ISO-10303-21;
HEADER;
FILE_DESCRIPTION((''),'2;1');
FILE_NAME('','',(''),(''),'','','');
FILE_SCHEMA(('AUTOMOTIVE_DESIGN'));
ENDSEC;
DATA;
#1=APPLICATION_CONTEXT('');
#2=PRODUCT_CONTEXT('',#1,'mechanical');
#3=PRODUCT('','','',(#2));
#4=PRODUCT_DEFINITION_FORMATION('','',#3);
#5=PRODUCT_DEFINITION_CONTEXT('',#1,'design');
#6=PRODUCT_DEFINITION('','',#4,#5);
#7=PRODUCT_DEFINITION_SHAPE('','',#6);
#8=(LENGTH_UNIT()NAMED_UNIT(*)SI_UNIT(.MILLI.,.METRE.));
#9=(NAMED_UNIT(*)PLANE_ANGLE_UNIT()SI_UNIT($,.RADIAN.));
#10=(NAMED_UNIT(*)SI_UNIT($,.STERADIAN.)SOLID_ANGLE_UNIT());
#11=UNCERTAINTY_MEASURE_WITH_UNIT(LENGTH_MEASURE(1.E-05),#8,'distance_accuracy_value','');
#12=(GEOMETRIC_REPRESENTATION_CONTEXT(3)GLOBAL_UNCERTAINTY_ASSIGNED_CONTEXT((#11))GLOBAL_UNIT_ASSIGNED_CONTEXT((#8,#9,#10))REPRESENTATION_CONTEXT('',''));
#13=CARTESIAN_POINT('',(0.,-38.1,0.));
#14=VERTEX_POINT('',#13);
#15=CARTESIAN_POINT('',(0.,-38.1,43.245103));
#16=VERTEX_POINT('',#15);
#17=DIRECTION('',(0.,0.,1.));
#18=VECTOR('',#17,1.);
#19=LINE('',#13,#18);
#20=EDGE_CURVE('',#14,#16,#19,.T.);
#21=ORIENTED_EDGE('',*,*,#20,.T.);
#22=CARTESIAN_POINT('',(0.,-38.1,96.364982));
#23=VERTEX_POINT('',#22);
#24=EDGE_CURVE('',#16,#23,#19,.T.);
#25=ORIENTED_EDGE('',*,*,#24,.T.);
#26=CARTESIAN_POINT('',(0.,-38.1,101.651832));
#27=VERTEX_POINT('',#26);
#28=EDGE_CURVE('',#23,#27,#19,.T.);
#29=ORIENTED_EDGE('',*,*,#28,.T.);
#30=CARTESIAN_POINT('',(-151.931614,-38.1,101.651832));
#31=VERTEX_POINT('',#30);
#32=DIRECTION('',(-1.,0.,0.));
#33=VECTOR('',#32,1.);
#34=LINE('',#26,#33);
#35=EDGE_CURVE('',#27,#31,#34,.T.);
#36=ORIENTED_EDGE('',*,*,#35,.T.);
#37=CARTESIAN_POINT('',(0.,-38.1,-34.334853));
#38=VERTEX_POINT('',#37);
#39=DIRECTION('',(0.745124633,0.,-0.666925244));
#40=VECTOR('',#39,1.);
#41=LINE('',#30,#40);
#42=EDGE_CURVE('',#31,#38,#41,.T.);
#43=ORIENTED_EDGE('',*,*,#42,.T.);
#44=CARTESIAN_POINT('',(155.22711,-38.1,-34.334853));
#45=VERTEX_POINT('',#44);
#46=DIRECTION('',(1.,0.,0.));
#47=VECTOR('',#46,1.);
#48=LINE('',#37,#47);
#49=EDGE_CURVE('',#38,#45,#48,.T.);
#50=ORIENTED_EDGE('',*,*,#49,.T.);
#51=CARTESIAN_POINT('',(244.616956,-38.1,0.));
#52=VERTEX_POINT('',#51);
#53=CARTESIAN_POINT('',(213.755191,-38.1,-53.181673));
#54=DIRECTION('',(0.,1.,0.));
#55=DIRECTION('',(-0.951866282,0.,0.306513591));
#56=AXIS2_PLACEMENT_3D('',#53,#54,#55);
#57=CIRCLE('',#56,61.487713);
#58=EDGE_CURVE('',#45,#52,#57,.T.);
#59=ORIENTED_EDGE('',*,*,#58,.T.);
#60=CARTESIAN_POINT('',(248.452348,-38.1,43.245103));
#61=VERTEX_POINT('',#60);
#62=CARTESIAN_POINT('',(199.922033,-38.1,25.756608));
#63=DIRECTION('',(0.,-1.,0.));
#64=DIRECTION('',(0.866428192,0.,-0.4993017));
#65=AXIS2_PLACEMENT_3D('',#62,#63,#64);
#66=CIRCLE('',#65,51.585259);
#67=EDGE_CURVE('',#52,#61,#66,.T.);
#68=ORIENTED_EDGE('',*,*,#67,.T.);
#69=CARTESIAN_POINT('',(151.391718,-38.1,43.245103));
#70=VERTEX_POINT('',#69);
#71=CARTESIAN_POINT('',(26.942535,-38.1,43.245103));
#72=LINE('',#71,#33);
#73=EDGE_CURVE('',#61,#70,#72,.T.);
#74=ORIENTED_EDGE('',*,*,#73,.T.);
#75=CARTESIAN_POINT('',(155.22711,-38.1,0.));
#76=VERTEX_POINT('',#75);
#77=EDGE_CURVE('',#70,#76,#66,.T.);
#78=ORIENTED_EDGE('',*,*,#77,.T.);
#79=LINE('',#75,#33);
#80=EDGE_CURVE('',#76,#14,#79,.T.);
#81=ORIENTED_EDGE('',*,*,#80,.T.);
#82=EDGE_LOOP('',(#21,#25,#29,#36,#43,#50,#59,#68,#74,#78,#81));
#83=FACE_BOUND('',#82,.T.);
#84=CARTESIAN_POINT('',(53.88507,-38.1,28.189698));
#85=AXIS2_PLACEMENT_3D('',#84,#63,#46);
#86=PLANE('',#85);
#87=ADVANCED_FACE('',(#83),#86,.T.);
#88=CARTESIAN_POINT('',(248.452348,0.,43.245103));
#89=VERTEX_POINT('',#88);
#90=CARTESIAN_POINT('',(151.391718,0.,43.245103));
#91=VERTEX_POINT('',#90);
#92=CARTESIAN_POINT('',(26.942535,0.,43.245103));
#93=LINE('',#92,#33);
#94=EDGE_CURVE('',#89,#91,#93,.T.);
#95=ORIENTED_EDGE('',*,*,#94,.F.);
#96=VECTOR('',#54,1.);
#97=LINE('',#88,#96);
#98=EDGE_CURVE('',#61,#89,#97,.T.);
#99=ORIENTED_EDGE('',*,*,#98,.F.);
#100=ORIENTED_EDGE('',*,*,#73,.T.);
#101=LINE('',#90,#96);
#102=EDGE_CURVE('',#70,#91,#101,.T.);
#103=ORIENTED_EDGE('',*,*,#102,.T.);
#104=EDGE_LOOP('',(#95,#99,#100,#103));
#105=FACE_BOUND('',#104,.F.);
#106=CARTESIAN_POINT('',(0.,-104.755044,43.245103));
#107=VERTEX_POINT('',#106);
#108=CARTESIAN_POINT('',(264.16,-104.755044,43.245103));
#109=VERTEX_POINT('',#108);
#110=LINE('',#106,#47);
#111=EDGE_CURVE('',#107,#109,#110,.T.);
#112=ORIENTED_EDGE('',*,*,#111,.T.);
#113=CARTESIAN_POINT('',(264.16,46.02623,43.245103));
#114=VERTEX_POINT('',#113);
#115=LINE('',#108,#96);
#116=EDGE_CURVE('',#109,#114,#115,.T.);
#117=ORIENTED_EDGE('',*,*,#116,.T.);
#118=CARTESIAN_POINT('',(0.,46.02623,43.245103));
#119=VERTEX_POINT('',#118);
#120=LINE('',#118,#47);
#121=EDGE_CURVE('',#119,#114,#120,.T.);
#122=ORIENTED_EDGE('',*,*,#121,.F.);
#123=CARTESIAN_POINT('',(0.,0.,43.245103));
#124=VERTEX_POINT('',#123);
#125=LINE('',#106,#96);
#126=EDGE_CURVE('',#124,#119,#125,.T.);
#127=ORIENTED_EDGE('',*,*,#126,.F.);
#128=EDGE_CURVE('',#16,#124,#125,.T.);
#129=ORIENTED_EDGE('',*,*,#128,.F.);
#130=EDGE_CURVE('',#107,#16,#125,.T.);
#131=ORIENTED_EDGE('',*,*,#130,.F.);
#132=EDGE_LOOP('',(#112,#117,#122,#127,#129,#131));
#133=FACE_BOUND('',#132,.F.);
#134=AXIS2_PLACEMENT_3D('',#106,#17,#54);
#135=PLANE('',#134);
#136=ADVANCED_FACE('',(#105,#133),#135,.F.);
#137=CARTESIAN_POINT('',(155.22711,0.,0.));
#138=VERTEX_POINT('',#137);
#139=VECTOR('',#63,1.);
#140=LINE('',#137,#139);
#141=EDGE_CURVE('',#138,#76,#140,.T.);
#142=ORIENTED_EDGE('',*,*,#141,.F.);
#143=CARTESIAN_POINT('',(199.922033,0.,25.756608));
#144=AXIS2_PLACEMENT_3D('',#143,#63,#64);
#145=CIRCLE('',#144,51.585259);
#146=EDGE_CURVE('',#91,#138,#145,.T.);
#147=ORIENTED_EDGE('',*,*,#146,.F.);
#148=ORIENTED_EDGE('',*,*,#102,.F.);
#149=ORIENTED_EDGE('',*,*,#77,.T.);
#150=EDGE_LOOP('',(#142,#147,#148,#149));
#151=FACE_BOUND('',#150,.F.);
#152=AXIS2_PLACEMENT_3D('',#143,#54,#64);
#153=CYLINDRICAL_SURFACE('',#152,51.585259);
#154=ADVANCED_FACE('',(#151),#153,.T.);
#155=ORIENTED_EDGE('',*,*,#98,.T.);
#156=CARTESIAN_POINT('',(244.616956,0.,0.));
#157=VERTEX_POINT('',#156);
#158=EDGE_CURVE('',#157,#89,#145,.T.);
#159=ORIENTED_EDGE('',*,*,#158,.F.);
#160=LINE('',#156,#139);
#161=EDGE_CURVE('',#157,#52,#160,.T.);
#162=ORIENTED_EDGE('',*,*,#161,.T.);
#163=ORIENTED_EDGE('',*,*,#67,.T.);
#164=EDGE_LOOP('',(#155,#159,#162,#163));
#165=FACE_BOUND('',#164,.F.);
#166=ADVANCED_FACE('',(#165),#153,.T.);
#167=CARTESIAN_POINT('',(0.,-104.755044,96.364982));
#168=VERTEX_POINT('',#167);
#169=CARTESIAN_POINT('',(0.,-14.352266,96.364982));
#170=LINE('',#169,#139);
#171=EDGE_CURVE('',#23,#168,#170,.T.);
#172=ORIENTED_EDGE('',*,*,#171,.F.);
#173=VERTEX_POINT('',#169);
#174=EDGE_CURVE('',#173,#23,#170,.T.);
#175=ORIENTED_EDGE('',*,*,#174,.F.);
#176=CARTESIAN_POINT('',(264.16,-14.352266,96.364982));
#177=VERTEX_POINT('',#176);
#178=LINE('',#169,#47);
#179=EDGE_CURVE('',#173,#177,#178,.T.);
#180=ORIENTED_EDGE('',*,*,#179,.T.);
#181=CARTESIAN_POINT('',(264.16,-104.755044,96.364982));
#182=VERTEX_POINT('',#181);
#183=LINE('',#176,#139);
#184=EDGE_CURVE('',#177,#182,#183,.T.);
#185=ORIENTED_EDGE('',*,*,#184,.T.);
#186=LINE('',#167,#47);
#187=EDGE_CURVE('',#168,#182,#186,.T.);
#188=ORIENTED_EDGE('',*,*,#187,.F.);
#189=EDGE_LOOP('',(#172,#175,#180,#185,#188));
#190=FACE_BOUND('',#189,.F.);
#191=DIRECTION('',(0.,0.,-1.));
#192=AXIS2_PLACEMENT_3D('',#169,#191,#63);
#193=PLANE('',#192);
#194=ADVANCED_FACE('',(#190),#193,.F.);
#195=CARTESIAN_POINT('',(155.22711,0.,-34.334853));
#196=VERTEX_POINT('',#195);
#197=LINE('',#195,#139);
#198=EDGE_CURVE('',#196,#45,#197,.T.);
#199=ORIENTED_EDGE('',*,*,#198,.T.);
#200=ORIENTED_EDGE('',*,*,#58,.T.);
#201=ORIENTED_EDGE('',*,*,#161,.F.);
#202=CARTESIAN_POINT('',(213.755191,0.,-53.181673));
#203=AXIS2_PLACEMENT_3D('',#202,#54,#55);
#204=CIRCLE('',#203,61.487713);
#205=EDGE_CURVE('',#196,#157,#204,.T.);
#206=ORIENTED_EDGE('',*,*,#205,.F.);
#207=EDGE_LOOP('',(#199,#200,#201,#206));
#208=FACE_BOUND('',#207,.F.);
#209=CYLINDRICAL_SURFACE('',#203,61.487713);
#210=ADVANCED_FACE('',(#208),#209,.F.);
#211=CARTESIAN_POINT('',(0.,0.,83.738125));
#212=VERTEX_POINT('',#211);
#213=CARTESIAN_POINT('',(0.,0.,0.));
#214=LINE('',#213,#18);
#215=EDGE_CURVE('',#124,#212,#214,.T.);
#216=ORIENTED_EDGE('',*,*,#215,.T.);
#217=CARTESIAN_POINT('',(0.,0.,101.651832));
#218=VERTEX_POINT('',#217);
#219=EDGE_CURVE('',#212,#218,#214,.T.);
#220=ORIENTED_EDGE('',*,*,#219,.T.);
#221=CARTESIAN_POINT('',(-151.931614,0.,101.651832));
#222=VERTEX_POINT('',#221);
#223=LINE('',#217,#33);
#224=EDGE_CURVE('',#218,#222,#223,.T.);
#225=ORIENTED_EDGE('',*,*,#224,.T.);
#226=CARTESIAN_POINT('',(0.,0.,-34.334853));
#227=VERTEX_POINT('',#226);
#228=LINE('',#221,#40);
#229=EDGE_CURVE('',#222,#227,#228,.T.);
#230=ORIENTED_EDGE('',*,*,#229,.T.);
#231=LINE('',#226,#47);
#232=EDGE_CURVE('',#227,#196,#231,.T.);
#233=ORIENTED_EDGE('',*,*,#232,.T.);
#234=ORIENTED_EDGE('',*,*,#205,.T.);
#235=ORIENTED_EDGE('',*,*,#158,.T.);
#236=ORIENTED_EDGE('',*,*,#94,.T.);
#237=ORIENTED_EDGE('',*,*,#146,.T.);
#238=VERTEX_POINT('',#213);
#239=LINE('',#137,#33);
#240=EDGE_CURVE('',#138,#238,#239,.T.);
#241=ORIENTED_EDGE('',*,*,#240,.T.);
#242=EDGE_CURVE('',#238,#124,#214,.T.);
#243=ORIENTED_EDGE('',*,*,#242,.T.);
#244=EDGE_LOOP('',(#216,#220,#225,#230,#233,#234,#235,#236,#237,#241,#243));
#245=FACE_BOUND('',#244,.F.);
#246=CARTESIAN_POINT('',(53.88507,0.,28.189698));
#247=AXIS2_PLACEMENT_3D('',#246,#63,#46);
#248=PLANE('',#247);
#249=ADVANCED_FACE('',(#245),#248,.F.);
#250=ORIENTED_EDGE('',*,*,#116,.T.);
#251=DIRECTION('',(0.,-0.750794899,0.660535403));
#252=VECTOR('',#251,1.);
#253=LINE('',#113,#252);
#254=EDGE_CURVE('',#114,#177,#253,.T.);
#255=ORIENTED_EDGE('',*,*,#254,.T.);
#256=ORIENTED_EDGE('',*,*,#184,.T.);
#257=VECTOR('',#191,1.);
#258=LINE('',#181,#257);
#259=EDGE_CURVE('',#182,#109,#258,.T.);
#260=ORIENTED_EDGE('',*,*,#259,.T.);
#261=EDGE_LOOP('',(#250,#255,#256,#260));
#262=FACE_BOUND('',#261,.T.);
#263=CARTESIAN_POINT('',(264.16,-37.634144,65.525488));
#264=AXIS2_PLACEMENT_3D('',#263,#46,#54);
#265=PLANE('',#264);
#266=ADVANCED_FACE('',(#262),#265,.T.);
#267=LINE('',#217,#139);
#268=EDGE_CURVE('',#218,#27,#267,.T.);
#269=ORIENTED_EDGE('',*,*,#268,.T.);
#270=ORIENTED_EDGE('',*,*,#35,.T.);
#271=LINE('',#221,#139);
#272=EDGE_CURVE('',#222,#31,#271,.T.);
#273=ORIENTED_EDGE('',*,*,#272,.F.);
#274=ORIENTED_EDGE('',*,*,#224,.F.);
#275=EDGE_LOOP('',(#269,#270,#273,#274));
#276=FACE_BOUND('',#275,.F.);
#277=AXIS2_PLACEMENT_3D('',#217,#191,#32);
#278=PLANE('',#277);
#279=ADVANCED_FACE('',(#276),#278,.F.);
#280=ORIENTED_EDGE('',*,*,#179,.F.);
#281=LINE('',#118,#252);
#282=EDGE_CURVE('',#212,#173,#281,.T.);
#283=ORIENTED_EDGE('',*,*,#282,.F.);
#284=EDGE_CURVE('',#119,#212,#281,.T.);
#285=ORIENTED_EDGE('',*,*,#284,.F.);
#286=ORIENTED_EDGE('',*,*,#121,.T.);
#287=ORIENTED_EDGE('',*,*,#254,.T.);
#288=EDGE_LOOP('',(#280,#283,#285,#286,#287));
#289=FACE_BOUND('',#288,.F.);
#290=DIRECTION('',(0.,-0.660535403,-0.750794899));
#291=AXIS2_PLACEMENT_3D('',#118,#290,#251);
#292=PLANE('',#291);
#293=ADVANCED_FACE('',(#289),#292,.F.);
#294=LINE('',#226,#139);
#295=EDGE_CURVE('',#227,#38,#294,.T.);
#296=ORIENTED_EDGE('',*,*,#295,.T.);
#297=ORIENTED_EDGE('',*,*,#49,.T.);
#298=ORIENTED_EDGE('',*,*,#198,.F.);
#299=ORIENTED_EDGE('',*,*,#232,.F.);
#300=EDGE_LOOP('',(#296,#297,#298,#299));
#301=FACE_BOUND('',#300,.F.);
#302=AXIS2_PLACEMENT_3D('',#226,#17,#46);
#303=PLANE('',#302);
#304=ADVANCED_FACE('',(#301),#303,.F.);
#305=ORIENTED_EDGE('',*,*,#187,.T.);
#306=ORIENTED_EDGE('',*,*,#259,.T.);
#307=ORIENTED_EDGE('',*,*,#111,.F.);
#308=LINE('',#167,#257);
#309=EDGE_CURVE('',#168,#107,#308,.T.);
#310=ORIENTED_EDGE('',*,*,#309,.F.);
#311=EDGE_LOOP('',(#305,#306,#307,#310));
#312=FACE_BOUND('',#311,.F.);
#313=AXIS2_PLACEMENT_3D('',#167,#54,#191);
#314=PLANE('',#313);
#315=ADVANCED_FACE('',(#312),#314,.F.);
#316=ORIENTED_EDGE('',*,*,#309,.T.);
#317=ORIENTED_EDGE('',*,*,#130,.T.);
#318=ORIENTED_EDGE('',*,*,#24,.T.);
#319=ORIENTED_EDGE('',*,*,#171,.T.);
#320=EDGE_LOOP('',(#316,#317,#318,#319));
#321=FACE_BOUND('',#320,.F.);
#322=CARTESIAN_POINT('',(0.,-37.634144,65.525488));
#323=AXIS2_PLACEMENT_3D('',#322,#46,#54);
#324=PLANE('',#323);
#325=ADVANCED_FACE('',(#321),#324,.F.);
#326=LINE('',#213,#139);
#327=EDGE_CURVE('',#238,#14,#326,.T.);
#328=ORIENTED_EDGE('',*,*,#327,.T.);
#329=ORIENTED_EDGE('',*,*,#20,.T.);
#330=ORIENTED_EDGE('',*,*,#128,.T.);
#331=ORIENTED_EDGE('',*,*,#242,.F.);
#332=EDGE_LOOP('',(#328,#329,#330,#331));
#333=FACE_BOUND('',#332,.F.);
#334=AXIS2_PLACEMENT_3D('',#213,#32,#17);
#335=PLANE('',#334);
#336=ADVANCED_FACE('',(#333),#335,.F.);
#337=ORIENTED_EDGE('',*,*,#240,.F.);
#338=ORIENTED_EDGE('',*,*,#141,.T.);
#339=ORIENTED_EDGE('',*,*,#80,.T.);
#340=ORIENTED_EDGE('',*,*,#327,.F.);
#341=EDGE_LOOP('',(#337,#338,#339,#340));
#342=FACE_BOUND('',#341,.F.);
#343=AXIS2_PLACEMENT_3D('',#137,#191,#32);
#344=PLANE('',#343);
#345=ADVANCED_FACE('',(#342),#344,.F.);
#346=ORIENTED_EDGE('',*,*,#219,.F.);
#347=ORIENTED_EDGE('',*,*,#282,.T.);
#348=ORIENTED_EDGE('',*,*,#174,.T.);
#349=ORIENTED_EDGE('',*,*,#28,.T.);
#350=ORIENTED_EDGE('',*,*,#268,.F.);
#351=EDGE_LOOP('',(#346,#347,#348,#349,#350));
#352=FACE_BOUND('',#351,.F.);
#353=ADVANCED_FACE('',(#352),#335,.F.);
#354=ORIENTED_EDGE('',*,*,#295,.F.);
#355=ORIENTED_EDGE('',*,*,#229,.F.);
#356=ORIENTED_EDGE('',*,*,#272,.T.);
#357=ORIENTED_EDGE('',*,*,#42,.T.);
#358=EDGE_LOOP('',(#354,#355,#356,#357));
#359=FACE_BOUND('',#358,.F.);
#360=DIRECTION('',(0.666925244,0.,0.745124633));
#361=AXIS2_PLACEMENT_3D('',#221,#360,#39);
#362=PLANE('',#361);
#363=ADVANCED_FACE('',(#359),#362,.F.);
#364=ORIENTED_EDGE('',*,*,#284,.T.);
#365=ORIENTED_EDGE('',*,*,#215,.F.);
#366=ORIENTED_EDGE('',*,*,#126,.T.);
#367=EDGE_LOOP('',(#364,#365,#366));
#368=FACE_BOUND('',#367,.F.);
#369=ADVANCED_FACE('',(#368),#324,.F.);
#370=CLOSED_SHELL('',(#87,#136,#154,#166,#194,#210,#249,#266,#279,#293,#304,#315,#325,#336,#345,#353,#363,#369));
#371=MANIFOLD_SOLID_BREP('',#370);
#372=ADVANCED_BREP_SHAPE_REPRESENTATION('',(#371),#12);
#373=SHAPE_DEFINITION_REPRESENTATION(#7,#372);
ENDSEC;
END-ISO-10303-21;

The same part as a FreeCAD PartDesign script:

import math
import FreeCAD as App
import Part
import Sketcher

V = App.Vector
Q = App.Units.Quantity

doc = App.newDocument("Part")
body = doc.addObject("PartDesign::Body", "Body")

# Sketch on XZ plane
sketch1 = body.newObject("Sketcher::SketchObject", "Sketch")
sketch1.AttachmentSupport = (doc.getObject("XZ_Plane"), [""])
sketch1.MapMode = "FlatFace"
sketch1.addGeometry([
    Part.LineSegment(V(0, 102, 0), V(-152, 102, 0)),  # 0
    Part.LineSegment(V(-152, 102, 0), V(0, -34, 0)),  # 1
    Part.LineSegment(V(0, -34, 0), V(155, -34, 0)),  # 2
    Part.ArcOfCircle(Part.Circle(V(214, -53, 0), V(0, 0, 1), 61), math.radians(60), math.radians(162)),  # 3
    Part.ArcOfCircle(Part.Circle(V(200, 26, 0), V(0, 0, 1), 52), math.radians(-30), math.radians(210)),  # 4
    Part.LineSegment(V(155, 0, 0), V(0, 0, 0)),  # 5
    Part.LineSegment(V(0, 0, 0), V(0, 102, 0)),  # 6
], False)
sketch1.addConstraint([
    Sketcher.Constraint("Coincident", 0, 2, 1, 1),
    Sketcher.Constraint("Coincident", 1, 2, 2, 1),
    Sketcher.Constraint("Coincident", 2, 2, 3, 2),
    Sketcher.Constraint("Coincident", 3, 1, 4, 1),
    Sketcher.Constraint("Coincident", 4, 2, 5, 1),
    Sketcher.Constraint("Coincident", 5, 2, 6, 1),
    Sketcher.Constraint("Coincident", 6, 2, 0, 1),
    Sketcher.Constraint("Horizontal", 0),
    Sketcher.Constraint("Horizontal", 2),
    Sketcher.Constraint("Horizontal", 5),
    Sketcher.Constraint("Vertical", 6),
    Sketcher.Constraint("Coincident", 5, 2, -1, 1),
    Sketcher.Constraint("PointOnObject", 1, 2, -2),
    Sketcher.Constraint("PointOnObject", 3, 1, -1),
    Sketcher.Constraint("Vertical", 2, 2, 4, 2),
    Sketcher.Constraint("Radius", 4, Q("51.585259 mm")),
    Sketcher.Constraint("Radius", 3, Q("61.487713 mm")),
    Sketcher.Constraint("DistanceX", 2, 1, 2, 2, Q("155.22711 mm")),
    Sketcher.Constraint("DistanceY", 6, 1, 6, 2, Q("101.651832 mm")),
    Sketcher.Constraint("Distance", 1, Q("203.900941 mm")),
    Sketcher.Constraint("DistanceX", 0, 2, 0, 1, Q("151.931614 mm")),
    Sketcher.Constraint("DistanceX", -1, 1, 3, 3, Q("213.755191 mm")),
])
pad1 = body.newObject("PartDesign::Pad", "Pad")
pad1.Profile = sketch1
pad1.Length = Q("1.5 in")

# Sketch on YZ plane
sketch2 = body.newObject("Sketcher::SketchObject", "Sketch001")
sketch2.AttachmentSupport = (doc.getObject("YZ_Plane"), [""])
sketch2.MapMode = "FlatFace"
sketch2.addGeometry([
    Part.LineSegment(V(-14, 96, 0), V(-105, 96, 0)),
    Part.LineSegment(V(-105, 96, 0), V(-105, 43, 0)),
    Part.LineSegment(V(-105, 43, 0), V(46, 43, 0)),
    Part.LineSegment(V(46, 43, 0), V(-14, 96, 0)),
], False)
sketch2.addConstraint([
    Sketcher.Constraint("Coincident", 0, 2, 1, 1),
    Sketcher.Constraint("Coincident", 1, 2, 2, 1),
    Sketcher.Constraint("Coincident", 2, 2, 3, 1),
    Sketcher.Constraint("Coincident", 3, 2, 0, 1),
    Sketcher.Constraint("Horizontal", 0),
    Sketcher.Constraint("Vertical", 1),
    Sketcher.Constraint("Horizontal", 2),
    Sketcher.Constraint("DistanceY", 1, 2, 1, 1, Q("53.119879 mm")),
    Sketcher.Constraint("DistanceX", 0, 2, 0, 1, Q("90.402778 mm")),
    Sketcher.Constraint("DistanceX", 2, 1, 2, 2, Q("150.781274 mm")),
    Sketcher.Constraint("DistanceY", -1, 1, 0, 2, Q("96.364982 mm")),
    Sketcher.Constraint("DistanceX", -1, 1, 2, 2, Q("46.02623 mm")),
])
pad2 = body.newObject("PartDesign::Pad", "Pad001")
pad2.Profile = sketch2
pad2.Length = Q("10.4 in")

doc.recompute()
